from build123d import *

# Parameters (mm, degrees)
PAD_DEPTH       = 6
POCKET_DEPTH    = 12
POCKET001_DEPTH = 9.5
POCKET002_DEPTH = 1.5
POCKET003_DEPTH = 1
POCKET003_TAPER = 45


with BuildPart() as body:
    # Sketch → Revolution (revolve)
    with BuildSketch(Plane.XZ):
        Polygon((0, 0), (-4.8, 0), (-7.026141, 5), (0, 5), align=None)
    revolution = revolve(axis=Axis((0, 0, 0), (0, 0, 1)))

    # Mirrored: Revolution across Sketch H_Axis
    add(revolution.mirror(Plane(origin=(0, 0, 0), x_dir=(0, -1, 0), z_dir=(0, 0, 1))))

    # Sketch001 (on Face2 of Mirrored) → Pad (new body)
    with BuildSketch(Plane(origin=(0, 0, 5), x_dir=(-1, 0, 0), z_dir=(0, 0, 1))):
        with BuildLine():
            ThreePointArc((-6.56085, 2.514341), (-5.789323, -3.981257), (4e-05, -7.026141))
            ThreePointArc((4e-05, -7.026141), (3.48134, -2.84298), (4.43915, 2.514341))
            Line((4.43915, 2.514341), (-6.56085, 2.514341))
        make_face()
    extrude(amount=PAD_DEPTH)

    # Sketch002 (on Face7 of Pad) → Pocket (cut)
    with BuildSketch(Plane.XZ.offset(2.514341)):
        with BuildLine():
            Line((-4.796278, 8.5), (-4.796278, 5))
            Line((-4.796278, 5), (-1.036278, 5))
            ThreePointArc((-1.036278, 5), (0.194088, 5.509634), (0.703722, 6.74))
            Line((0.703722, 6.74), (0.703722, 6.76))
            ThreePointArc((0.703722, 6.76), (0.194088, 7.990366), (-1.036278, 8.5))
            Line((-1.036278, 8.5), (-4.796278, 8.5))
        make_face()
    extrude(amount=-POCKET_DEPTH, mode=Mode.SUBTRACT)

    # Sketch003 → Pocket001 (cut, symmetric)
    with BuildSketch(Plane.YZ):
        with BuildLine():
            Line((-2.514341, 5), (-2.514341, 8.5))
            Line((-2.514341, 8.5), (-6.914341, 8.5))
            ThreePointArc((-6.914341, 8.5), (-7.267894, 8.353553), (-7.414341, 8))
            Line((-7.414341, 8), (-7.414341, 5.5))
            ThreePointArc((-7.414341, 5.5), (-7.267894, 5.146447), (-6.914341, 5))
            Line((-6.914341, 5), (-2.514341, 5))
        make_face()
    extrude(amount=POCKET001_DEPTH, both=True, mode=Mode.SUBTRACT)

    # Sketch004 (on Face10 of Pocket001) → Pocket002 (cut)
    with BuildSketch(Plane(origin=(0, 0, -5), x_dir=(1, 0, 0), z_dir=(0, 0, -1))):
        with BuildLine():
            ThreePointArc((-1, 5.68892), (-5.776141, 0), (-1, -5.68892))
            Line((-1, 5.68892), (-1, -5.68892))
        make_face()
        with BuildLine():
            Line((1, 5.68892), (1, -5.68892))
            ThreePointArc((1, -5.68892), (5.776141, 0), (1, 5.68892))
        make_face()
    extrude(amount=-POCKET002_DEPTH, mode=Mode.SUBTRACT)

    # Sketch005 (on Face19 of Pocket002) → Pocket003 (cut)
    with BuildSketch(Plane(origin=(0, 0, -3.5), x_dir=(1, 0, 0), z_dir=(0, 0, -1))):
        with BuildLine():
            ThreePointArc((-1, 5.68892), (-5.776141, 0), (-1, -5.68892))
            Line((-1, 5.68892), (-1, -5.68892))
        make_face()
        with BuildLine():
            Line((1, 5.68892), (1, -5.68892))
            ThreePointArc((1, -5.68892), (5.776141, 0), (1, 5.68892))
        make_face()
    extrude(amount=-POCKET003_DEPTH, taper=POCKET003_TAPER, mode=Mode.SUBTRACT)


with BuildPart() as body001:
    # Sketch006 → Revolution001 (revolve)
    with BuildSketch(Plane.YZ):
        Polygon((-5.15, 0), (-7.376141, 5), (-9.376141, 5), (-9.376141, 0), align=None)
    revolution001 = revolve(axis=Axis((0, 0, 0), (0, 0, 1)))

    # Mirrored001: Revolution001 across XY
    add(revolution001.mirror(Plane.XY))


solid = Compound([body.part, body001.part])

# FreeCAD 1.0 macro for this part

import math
import FreeCAD as App
import Part
import Sketcher

doc = App.newDocument("Part")
params = doc.addObject("Spreadsheet::Sheet", "Params")
for row, (alias, value) in enumerate([
    ("sketch1_height", "5 mm"),
    ("sketch1_width", "4.8 mm"),
    ("revolution_angle", "360 deg"),
    ("sketch2_width", "11 mm"),
    ("pad1_length", "6 mm"),
    ("sketch3_radius", "1.739999 mm"),
    ("sketch3_height", "3.5 mm"),
    ("sketch3_width", "3.76 mm"),
    ("pocket1_length", "12 mm"),
    ("sketch4_radius", "0.500001 mm"),
    ("sketch4_width", "4.4 mm"),
    ("sketch4_height", "3.5 mm"),
    ("sketch4_height2", "2.5 mm"),
    ("pocket2_length", "19 mm"),
    ("pocket3_length", "1.5 mm"),
    ("pocket4_length", "1 mm"),
    ("pocket4_taper", "-45 deg"),
    ("sketch7_width", "2 mm"),
    ("sketch7_height", "5 mm"),
    ("revolution2_angle", "360 deg"),
], start=1):
    params.set(f"A{row}", alias)
    params.set(f"B{row}", "=" + value)
    params.setAlias(f"B{row}", alias)

body = doc.addObject("PartDesign::Body", "Body")

sketch1 = doc.addObject("Sketcher::SketchObject", "Sketch")
body.addObject(sketch1)
sketch1.AttachmentSupport = (doc.XZ_Plane, [""])
sketch1.MapMode = "FlatFace"
sketch1.addGeometry([
    Part.LineSegment(App.Vector(-4.8, 0, 0), App.Vector(0, 0, 0)),
    Part.LineSegment(App.Vector(0, 0, 0), App.Vector(0, 5, 0)),
    Part.LineSegment(App.Vector(0, 5, 0), App.Vector(-7.026141, 5, 0)),
    Part.LineSegment(App.Vector(-7.026141, 5, 0), App.Vector(-4.8, 0, 0)),
], False)
sketch1.addConstraint([
    Sketcher.Constraint("Coincident", 0, 2, 1, 1),
    Sketcher.Constraint("Coincident", 1, 2, 2, 1),
    Sketcher.Constraint("Coincident", 2, 2, 3, 1),
    Sketcher.Constraint("Coincident", 3, 2, 0, 1),
    Sketcher.Constraint("Horizontal", 0),
    Sketcher.Constraint("Vertical", 1),
    Sketcher.Constraint("Horizontal", 2),
    Sketcher.Constraint("Coincident", 0, 2, -1, 1),
    Sketcher.Constraint("DistanceY", 1, 1, 1, 2, 5.0),
    Sketcher.Constraint("DistanceX", 0, 1, 0, 2, 4.8),
    Sketcher.Constraint("DistanceX", 2, 2, 2, 1, 7.026141),
])
sketch1.setExpression("Constraints[8]", "Params.sketch1_height")
sketch1.setExpression("Constraints[9]", "Params.sketch1_width")
revolution = doc.addObject("PartDesign::Revolution", "Revolution")
body.addObject(revolution)
revolution.Profile = sketch1
revolution.ReferenceAxis = (sketch1, ["V_Axis"])
revolution.setExpression("Angle", "Params.revolution_angle")
doc.recompute()

mirrored = doc.addObject("PartDesign::Mirrored", "Mirrored")
body.addObject(mirrored)
mirrored.Originals = [revolution]
mirrored.MirrorPlane = (doc.XY_Plane, [""])
body.Tip = mirrored

sketch2 = doc.addObject("Sketcher::SketchObject", "Sketch001")
body.addObject(sketch2)
sketch2.AttachmentSupport = (doc.XY_Plane, [""])
sketch2.MapMode = "FlatFace"
sketch2.AttachmentOffset = App.Placement(App.Vector(0, 0, 5), App.Rotation())
sketch2.addGeometry([
    Part.ArcOfCircle(Part.Circle(App.Vector(0.000001, 0.000001, 0), App.Vector(0, 0, 1), 7.02614), math.radians(-20.96854), math.radians(90.000336)),
    Part.ArcOfCircle(Part.Circle(App.Vector(6.166885, -1.646262, 0), App.Vector(0, 0, 1), 10.641501), math.radians(125.41654), math.radians(184.679095)),
    Part.LineSegment(App.Vector(-4.43915, -2.514341, 0), App.Vector(6.56085, -2.514341, 0)),
], False)
sketch2.addConstraint([
    Sketcher.Constraint("Coincident", 0, 2, 1, 1),
    Sketcher.Constraint("Coincident", 1, 2, 2, 1),
    Sketcher.Constraint("Coincident", 2, 2, 0, 1),
    Sketcher.Constraint("Horizontal", 2),
    Sketcher.Constraint("Coincident", 0, 3, -1, 1),
    Sketcher.Constraint("DistanceX", 2, 1, 2, 2, 11.0),
    Sketcher.Constraint("Radius", 1, 10.641501),
    Sketcher.Constraint("Radius", 0, 7.02614),
    Sketcher.Constraint("DistanceY", 1, 3, -1, 1, 1.646262),
    Sketcher.Constraint("DistanceX", 1, 2, -1, 1, 4.43915),
])
sketch2.setExpression("Constraints[5]", "Params.sketch2_width")
pad1 = doc.addObject("PartDesign::Pad", "Pad")
body.addObject(pad1)
pad1.Profile = sketch2
pad1.setExpression("Length", "Params.pad1_length")

sketch3 = doc.addObject("Sketcher::SketchObject", "Sketch002")
body.addObject(sketch3)
sketch3.AttachmentSupport = (doc.XZ_Plane, [""])
sketch3.MapMode = "FlatFace"
sketch3.AttachmentOffset = App.Placement(App.Vector(0, 0, 2.514341), App.Rotation())
sketch3.addGeometry([
    Part.LineSegment(App.Vector(-4.796278, 8.5, 0), App.Vector(-4.796278, 5, 0)),
    Part.LineSegment(App.Vector(-4.796278, 5, 0), App.Vector(-1.036278, 5, 0)),
    Part.ArcOfCircle(Part.Circle(App.Vector(-1.036277, 6.739999, 0), App.Vector(0, 0, 1), 1.739999), math.radians(-90.000023), math.radians(0.000023)),
    Part.LineSegment(App.Vector(0.703722, 6.74, 0), App.Vector(0.703722, 6.76, 0)),
    Part.ArcOfCircle(Part.Circle(App.Vector(-1.036277, 6.760001, 0), App.Vector(0, 0, 1), 1.739999), math.radians(-0.000023), math.radians(90.000023)),
    Part.LineSegment(App.Vector(-1.036278, 8.5, 0), App.Vector(-4.796278, 8.5, 0)),
], False)
sketch3.addConstraint([
    Sketcher.Constraint("Coincident", 0, 2, 1, 1),
    Sketcher.Constraint("Tangent", 1, 2, 2, 1),
    Sketcher.Constraint("Tangent", 2, 2, 3, 1),
    Sketcher.Constraint("Tangent", 3, 2, 4, 1),
    Sketcher.Constraint("Tangent", 4, 2, 5, 1),
    Sketcher.Constraint("Coincident", 5, 2, 0, 1),
    Sketcher.Constraint("Vertical", 0),
    Sketcher.Constraint("Horizontal", 1),
    Sketcher.Constraint("Vertical", 3),
    Sketcher.Constraint("Horizontal", 5),
    Sketcher.Constraint("Equal", 2, 4),
    Sketcher.Constraint("Radius", 2, 1.739999),
    Sketcher.Constraint("DistanceY", 0, 2, 0, 1, 3.5),
    Sketcher.Constraint("DistanceY", -1, 1, 0, 2, 5.0),
    Sketcher.Constraint("DistanceX", 1, 1, 1, 2, 3.76),
    Sketcher.Constraint("DistanceX", -1, 1, 2, 2, 0.703722),
])
sketch3.setExpression("Constraints[11]", "Params.sketch3_radius")
sketch3.setExpression("Constraints[12]", "Params.sketch3_height")
sketch3.setExpression("Constraints[14]", "Params.sketch3_width")
pocket1 = doc.addObject("PartDesign::Pocket", "Pocket")
body.addObject(pocket1)
pocket1.Profile = sketch3
pocket1.setExpression("Length", "Params.pocket1_length")

sketch4 = doc.addObject("Sketcher::SketchObject", "Sketch003")
body.addObject(sketch4)
sketch4.AttachmentSupport = (doc.YZ_Plane, [""])
sketch4.MapMode = "FlatFace"
sketch4.addGeometry([
    Part.LineSegment(App.Vector(-2.514341, 5, 0), App.Vector(-2.514341, 8.5, 0)),
    Part.LineSegment(App.Vector(-2.514341, 8.5, 0), App.Vector(-6.914341, 8.5, 0)),
    Part.ArcOfCircle(Part.Circle(App.Vector(-6.91434, 7.999999, 0), App.Vector(0, 0, 1), 0.500001), math.radians(90.000153), math.radians(179.999847)),
    Part.LineSegment(App.Vector(-7.414341, 8, 0), App.Vector(-7.414341, 5.5, 0)),
    Part.ArcOfCircle(Part.Circle(App.Vector(-6.91434, 5.500001, 0), App.Vector(0, 0, 1), 0.500001), math.radians(-179.999847), math.radians(-90.000153)),
    Part.LineSegment(App.Vector(-6.914341, 5, 0), App.Vector(-2.514341, 5, 0)),
], False)
sketch4.addConstraint([
    Sketcher.Constraint("Coincident", 0, 2, 1, 1),
    Sketcher.Constraint("Coincident", 1, 2, 2, 1),
    Sketcher.Constraint("Coincident", 2, 2, 3, 1),
    Sketcher.Constraint("Coincident", 3, 2, 4, 1),
    Sketcher.Constraint("Coincident", 4, 2, 5, 1),
    Sketcher.Constraint("Coincident", 5, 2, 0, 1),
    Sketcher.Constraint("Vertical", 0),
    Sketcher.Constraint("Horizontal", 1),
    Sketcher.Constraint("Vertical", 3),
    Sketcher.Constraint("Horizontal", 5),
    Sketcher.Constraint("Equal", 2, 4),
    Sketcher.Constraint("Horizontal", 4, 3, 3, 2),
    Sketcher.Constraint("Vertical", 4, 3, 1, 2),
    Sketcher.Constraint("Vertical", 1, 2, 4, 2),
    Sketcher.Constraint("Radius", 2, 0.500001),
    Sketcher.Constraint("DistanceX", 1, 2, 1, 1, 4.4),
    Sketcher.Constraint("DistanceY", 0, 1, 0, 2, 3.5),
    Sketcher.Constraint("DistanceY", 3, 2, 3, 1, 2.5),
    Sketcher.Constraint("DistanceY", -1, 1, 2, 3, 7.999999),
    Sketcher.Constraint("DistanceX", 2, 3, -1, 1, 6.91434),
])
sketch4.setExpression("Constraints[14]", "Params.sketch4_radius")
sketch4.setExpression("Constraints[15]", "Params.sketch4_width")
sketch4.setExpression("Constraints[16]", "Params.sketch4_height")
sketch4.setExpression("Constraints[17]", "Params.sketch4_height2")
pocket2 = doc.addObject("PartDesign::Pocket", "Pocket001")
body.addObject(pocket2)
pocket2.Profile = sketch4
pocket2.setExpression("Length", "Params.pocket2_length")
pocket2.Midplane = True

sketch5 = doc.addObject("Sketcher::SketchObject", "Sketch004")
body.addObject(sketch5)
sketch5.AttachmentSupport = (doc.XY_Plane, [""])
sketch5.MapMode = "FlatFace"
sketch5.AttachmentOffset = App.Placement(App.Vector(0, 0, -5), App.Rotation())
sketch5.addGeometry([
    Part.ArcOfCircle(Part.Circle(App.Vector(0.000001, 0, 0), App.Vector(0, 0, 1), 5.776142), math.radians(99.969625), math.radians(260.030375)),
    Part.LineSegment(App.Vector(-1, 5.68892, 0), App.Vector(-1, -5.68892, 0)),
    Part.LineSegment(App.Vector(1, -5.68892, 0), App.Vector(1, 5.68892, 0)),
    Part.ArcOfCircle(Part.Circle(App.Vector(-0.000001, 0, 0), App.Vector(0, 0, 1), 5.776142), math.radians(-80.030375), math.radians(80.030375)),
], False)
sketch5.addConstraint([
    Sketcher.Constraint("Coincident", 0, 1, 1, 1),
    Sketcher.Constraint("Coincident", 1, 2, 0, 2),
    Sketcher.Constraint("Coincident", 2, 1, 3, 1),
    Sketcher.Constraint("Coincident", 3, 2, 2, 2),
    Sketcher.Constraint("Vertical", 1),
    Sketcher.Constraint("Vertical", 2),
    Sketcher.Constraint("Coincident", 0, 3, -1, 1),
    Sketcher.Constraint("Coincident", 3, 3, -1, 1),
    Sketcher.Constraint("Equal", 0, 3),
    Sketcher.Constraint("Horizontal", 1, 2, 2, 1),
    Sketcher.Constraint("DistanceX", 0, 1, -1, 1, 1.0),
    Sketcher.Constraint("Radius", 0, 5.776142),
])
pocket3 = doc.addObject("PartDesign::Pocket", "Pocket002")
body.addObject(pocket3)
pocket3.Profile = sketch5
pocket3.setExpression("Length", "Params.pocket3_length")
pocket3.Reversed = True

sketch6 = doc.addObject("Sketcher::SketchObject", "Sketch005")
body.addObject(sketch6)
sketch6.AttachmentSupport = (doc.XY_Plane, [""])
sketch6.MapMode = "FlatFace"
sketch6.AttachmentOffset = App.Placement(App.Vector(0, 0, -3.5), App.Rotation())
sketch6.addGeometry([
    Part.ArcOfCircle(Part.Circle(App.Vector(0.000001, 0, 0), App.Vector(0, 0, 1), 5.776142), math.radians(99.969625), math.radians(260.030375)),
    Part.LineSegment(App.Vector(-1, 5.68892, 0), App.Vector(-1, -5.68892, 0)),
    Part.LineSegment(App.Vector(1, -5.68892, 0), App.Vector(1, 5.68892, 0)),
    Part.ArcOfCircle(Part.Circle(App.Vector(-0.000001, 0, 0), App.Vector(0, 0, 1), 5.776142), math.radians(-80.030375), math.radians(80.030375)),
], False)
sketch6.addConstraint([
    Sketcher.Constraint("Coincident", 0, 1, 1, 1),
    Sketcher.Constraint("Coincident", 1, 2, 0, 2),
    Sketcher.Constraint("Coincident", 2, 1, 3, 1),
    Sketcher.Constraint("Coincident", 3, 2, 2, 2),
    Sketcher.Constraint("Vertical", 1),
    Sketcher.Constraint("Vertical", 2),
    Sketcher.Constraint("Coincident", 0, 3, -1, 1),
    Sketcher.Constraint("Coincident", 3, 3, -1, 1),
    Sketcher.Constraint("Equal", 0, 3),
    Sketcher.Constraint("Horizontal", 1, 2, 2, 1),
    Sketcher.Constraint("DistanceX", 0, 1, -1, 1, 1.0),
    Sketcher.Constraint("Radius", 0, 5.776142),
])
pocket4 = doc.addObject("PartDesign::Pocket", "Pocket003")
body.addObject(pocket4)
pocket4.Profile = sketch6
pocket4.setExpression("Length", "Params.pocket4_length")
pocket4.Reversed = True
pocket4.setExpression("TaperAngle", "Params.pocket4_taper")
body2 = doc.addObject("PartDesign::Body", "Body001")

sketch7 = doc.addObject("Sketcher::SketchObject", "Sketch006")
body2.addObject(sketch7)
sketch7.AttachmentSupport = (doc.getObject("YZ_Plane001"), [""])
sketch7.MapMode = "FlatFace"
sketch7.addGeometry([
    Part.LineSegment(App.Vector(-5.15, 0, 0), App.Vector(-7.376141, 5, 0)),
    Part.LineSegment(App.Vector(-7.376141, 5, 0), App.Vector(-9.376141, 5, 0)),
    Part.LineSegment(App.Vector(-9.376141, 5, 0), App.Vector(-9.376141, 0, 0)),
    Part.LineSegment(App.Vector(-9.376141, 0, 0), App.Vector(-5.15, 0, 0)),
], False)
sketch7.addConstraint([
    Sketcher.Constraint("Coincident", 0, 2, 1, 1),
    Sketcher.Constraint("Coincident", 1, 2, 2, 1),
    Sketcher.Constraint("Coincident", 2, 2, 3, 1),
    Sketcher.Constraint("Coincident", 3, 2, 0, 1),
    Sketcher.Constraint("Horizontal", 1),
    Sketcher.Constraint("Vertical", 2),
    Sketcher.Constraint("Horizontal", 3),
    Sketcher.Constraint("PointOnObject", 2, 2, -1),
    Sketcher.Constraint("DistanceX", 1, 2, 1, 1, 2.0),
    Sketcher.Constraint("DistanceY", 2, 2, 2, 1, 5.0),
    Sketcher.Constraint("DistanceX", 3, 2, -1, 1, 5.15),
    Sketcher.Constraint("DistanceX", 3, 1, 3, 2, 4.226141),
])
sketch7.setExpression("Constraints[8]", "Params.sketch7_width")
sketch7.setExpression("Constraints[9]", "Params.sketch7_height")
revolution2 = doc.addObject("PartDesign::Revolution", "Revolution001")
body2.addObject(revolution2)
revolution2.Profile = sketch7
revolution2.ReferenceAxis = (sketch7, ["V_Axis"])
revolution2.setExpression("Angle", "Params.revolution2_angle")
doc.recompute()

mirrored2 = doc.addObject("PartDesign::Mirrored", "Mirrored001")
body2.addObject(mirrored2)
mirrored2.Originals = [revolution2]
mirrored2.MirrorPlane = (doc.getObject("XY_Plane001"), [""])
body2.Tip = mirrored2

doc.recompute()
